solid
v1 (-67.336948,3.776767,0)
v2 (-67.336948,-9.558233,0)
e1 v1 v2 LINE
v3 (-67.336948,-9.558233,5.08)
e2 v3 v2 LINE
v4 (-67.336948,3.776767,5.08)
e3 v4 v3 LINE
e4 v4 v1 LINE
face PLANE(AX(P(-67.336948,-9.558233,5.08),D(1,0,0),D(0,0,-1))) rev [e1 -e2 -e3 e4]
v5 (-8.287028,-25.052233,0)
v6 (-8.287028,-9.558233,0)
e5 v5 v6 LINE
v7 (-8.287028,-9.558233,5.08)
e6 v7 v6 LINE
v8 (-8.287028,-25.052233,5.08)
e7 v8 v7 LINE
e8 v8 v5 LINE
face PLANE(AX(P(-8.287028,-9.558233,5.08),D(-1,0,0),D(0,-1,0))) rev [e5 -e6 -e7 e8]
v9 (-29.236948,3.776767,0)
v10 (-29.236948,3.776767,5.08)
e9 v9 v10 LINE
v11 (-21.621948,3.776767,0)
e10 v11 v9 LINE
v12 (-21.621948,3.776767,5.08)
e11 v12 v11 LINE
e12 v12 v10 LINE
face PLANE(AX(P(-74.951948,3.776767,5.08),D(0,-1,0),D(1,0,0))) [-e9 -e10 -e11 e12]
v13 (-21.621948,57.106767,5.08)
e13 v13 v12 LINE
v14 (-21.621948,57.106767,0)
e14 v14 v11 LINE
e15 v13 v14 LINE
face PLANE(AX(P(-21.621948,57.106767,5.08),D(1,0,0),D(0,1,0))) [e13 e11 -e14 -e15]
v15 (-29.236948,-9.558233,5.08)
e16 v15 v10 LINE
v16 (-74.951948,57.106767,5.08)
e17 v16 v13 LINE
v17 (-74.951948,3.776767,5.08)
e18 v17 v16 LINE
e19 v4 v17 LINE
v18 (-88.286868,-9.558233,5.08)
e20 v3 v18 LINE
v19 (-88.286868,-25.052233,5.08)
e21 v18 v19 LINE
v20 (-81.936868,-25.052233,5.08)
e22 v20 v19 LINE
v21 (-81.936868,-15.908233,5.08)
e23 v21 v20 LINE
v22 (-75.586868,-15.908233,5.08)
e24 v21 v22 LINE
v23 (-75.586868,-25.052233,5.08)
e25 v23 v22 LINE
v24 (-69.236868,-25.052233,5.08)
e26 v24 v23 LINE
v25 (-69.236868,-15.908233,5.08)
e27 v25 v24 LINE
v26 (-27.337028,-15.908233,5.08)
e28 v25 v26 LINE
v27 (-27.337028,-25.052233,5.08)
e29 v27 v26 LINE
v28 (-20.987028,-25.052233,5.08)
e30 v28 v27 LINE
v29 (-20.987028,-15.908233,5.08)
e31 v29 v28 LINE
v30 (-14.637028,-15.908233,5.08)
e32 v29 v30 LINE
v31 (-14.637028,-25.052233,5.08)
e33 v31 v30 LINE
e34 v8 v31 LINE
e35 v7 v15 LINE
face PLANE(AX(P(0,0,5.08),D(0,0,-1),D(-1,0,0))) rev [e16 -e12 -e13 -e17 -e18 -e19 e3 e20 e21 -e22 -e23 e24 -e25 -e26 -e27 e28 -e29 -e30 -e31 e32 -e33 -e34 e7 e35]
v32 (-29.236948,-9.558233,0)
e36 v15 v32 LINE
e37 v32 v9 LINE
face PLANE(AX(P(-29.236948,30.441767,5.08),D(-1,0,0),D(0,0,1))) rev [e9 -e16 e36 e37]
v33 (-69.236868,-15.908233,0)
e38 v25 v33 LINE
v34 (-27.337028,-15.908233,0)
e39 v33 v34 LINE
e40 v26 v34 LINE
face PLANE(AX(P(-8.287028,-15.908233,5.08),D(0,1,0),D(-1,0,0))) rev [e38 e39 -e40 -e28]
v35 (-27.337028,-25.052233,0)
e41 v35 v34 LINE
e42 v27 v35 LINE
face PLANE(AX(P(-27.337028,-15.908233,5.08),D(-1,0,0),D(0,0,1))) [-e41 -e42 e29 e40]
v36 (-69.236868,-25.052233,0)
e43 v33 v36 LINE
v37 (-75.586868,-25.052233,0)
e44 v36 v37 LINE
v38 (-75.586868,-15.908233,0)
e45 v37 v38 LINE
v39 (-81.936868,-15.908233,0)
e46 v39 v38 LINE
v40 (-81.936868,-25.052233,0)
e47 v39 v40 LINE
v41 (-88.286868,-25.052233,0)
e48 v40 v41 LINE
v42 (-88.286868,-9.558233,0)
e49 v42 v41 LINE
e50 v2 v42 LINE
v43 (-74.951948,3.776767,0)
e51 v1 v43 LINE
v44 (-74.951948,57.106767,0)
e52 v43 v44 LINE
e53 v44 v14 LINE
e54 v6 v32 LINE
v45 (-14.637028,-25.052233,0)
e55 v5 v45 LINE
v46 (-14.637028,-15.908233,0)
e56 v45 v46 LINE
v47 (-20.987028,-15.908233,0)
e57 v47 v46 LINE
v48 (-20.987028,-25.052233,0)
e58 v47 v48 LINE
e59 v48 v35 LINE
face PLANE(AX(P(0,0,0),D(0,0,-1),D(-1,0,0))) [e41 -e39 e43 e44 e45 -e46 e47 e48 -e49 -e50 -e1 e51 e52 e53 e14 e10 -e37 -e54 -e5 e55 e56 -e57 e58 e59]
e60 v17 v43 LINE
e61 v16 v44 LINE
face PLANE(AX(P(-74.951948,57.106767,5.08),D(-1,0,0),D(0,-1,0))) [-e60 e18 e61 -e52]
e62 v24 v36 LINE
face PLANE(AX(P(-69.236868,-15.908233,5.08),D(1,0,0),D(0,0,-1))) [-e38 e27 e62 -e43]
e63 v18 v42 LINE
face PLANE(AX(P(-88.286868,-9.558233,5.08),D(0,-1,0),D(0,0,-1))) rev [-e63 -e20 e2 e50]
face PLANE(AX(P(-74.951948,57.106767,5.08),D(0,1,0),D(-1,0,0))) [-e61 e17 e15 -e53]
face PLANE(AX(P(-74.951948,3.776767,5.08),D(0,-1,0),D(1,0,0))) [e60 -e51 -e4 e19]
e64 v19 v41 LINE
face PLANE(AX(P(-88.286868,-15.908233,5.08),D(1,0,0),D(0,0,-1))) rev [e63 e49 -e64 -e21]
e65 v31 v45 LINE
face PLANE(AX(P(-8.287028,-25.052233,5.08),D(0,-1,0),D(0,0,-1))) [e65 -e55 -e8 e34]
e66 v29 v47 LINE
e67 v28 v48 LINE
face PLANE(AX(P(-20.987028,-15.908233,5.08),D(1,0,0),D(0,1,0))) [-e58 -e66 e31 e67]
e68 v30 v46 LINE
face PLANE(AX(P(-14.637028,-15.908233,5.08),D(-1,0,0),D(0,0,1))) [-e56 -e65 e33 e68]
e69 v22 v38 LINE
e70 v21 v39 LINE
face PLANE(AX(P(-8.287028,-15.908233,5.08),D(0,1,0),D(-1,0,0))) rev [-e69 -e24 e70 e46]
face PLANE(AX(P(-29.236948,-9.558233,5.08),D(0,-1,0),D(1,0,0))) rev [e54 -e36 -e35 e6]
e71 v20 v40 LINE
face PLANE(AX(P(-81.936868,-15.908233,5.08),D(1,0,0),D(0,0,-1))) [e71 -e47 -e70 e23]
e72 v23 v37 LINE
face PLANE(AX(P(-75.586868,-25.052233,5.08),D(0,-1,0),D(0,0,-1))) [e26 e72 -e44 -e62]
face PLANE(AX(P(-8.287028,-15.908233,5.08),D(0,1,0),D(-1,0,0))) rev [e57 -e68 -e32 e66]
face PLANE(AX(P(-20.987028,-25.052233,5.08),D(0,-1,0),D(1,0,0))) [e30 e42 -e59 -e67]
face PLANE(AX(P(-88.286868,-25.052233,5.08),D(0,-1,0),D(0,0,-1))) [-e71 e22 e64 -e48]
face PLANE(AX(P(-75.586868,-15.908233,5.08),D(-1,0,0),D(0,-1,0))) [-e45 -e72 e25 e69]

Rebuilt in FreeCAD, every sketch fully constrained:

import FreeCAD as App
import Part
import Sketcher
Q = App.Units.Quantity

doc = App.newDocument("Part")
params = doc.addObject("Spreadsheet::Sheet", "Params")
for row, (alias, value) in enumerate([
    ("sketch1_width", "1.5 in"),
    ("sketch1_height", "0.25 in"),
    ("pad1_length", "0.2 in"),
    ("sketch2_width", "0.25 in"),
    ("sketch2_height", "0.36 in"),
    ("pad2_length", "0.2 in"),
    ("pad3_length", "0.2 in"),
    ("sketch4_height", "0.36 in"),
    ("pocket1_length", "0.2 in"),
], start=1):
    params.set(f"A{row}", alias)
    params.set(f"B{row}", "=" + value)
    params.setAlias(f"B{row}", alias)

body = doc.addObject("PartDesign::Body", "Body")

# Sketch on XY plane
sketch1 = body.newObject("Sketcher::SketchObject", "Sketch")
sketch1.AttachmentSupport = (doc.getObject("XY_Plane"), [""])
sketch1.MapMode = "FlatFace"
sketch1.addGeometry([
    Part.LineSegment(App.Vector(-29, 30, 0), App.Vector(-67, 30, 0)),  # 0
    Part.LineSegment(App.Vector(-67, 30, 0), App.Vector(-67, -10, 0)),  # 1
    Part.LineSegment(App.Vector(-67, -10, 0), App.Vector(-88, -10, 0)),  # 2
    Part.LineSegment(App.Vector(-88, -10, 0), App.Vector(-88, -16, 0)),  # 3
    Part.LineSegment(App.Vector(-88, -16, 0), App.Vector(-8, -16, 0)),  # 4
    Part.LineSegment(App.Vector(-8, -16, 0), App.Vector(-8, -10, 0)),  # 5
    Part.LineSegment(App.Vector(-8, -10, 0), App.Vector(-29, -10, 0)),  # 6
    Part.LineSegment(App.Vector(-29, -10, 0), App.Vector(-29, 30, 0)),  # 7
], False)
sketch1.addConstraint([
    Sketcher.Constraint("Coincident", 0, 2, 1, 1),
    Sketcher.Constraint("Coincident", 1, 2, 2, 1),
    Sketcher.Constraint("Coincident", 2, 2, 3, 1),
    Sketcher.Constraint("Coincident", 3, 2, 4, 1),
    Sketcher.Constraint("Coincident", 4, 2, 5, 1),
    Sketcher.Constraint("Coincident", 5, 2, 6, 1),
    Sketcher.Constraint("Coincident", 6, 2, 7, 1),
    Sketcher.Constraint("Coincident", 7, 2, 0, 1),
    Sketcher.Constraint("Horizontal", 0),
    Sketcher.Constraint("Vertical", 1),
    Sketcher.Constraint("Horizontal", 2),
    Sketcher.Constraint("Vertical", 3),
    Sketcher.Constraint("Horizontal", 4),
    Sketcher.Constraint("Vertical", 5),
    Sketcher.Constraint("Horizontal", 6),
    Sketcher.Constraint("Vertical", 7),
    Sketcher.Constraint("Horizontal", 2, 2, 5, 2),
    Sketcher.Constraint("Equal", 2, 6),
    Sketcher.Constraint("DistanceX", 0, 2, 0, 1, Q("1.5 in")),
    Sketcher.Constraint("DistanceY", 3, 2, 3, 1, Q("0.25 in")),
    Sketcher.Constraint("DistanceX", 2, 2, 2, 1, Q("0.8248 in")),
    Sketcher.Constraint("DistanceY", 1, 2, 1, 1, 40.0),
    Sketcher.Constraint("DistanceX", 0, 2, -1, 1, 67.336948),
    Sketcher.Constraint("DistanceY", -1, 1, 0, 2, 30.441767),
])
sketch1.setExpression("Constraints[18]", "Params.sketch1_width")
sketch1.setExpression("Constraints[19]", "Params.sketch1_height")
pad1 = body.newObject("PartDesign::Pad", "Pad")
pad1.Profile = sketch1
pad1.setExpression("Length", "Params.pad1_length")

# Sketch on XY plane
sketch2 = body.newObject("Sketcher::SketchObject", "Sketch001")
sketch2.AttachmentSupport = (doc.getObject("XY_Plane"), [""])
sketch2.MapMode = "FlatFace"
sketch2.addGeometry([
    Part.LineSegment(App.Vector(-82, -16, 0), App.Vector(-82, -25, 0)),  # 0
    Part.LineSegment(App.Vector(-82, -25, 0), App.Vector(-88, -25, 0)),  # 1
    Part.LineSegment(App.Vector(-88, -25, 0), App.Vector(-88, -16, 0)),  # 2
    Part.LineSegment(App.Vector(-88, -16, 0), App.Vector(-82, -16, 0)),  # 3
    Part.LineSegment(App.Vector(-69, -16, 0), App.Vector(-69, -25, 0)),  # 4
    Part.LineSegment(App.Vector(-69, -25, 0), App.Vector(-76, -25, 0)),  # 5
    Part.LineSegment(App.Vector(-76, -25, 0), App.Vector(-76, -16, 0)),  # 6
    Part.LineSegment(App.Vector(-76, -16, 0), App.Vector(-69, -16, 0)),  # 7
    Part.LineSegment(App.Vector(-8, -16, 0), App.Vector(-8, -25, 0)),  # 8
    Part.LineSegment(App.Vector(-8, -25, 0), App.Vector(-15, -25, 0)),  # 9
    Part.LineSegment(App.Vector(-15, -25, 0), App.Vector(-15, -16, 0)),  # 10
    Part.LineSegment(App.Vector(-15, -16, 0), App.Vector(-8, -16, 0)),  # 11
    Part.LineSegment(App.Vector(-21, -16, 0), App.Vector(-21, -25, 0)),  # 12
    Part.LineSegment(App.Vector(-21, -25, 0), App.Vector(-27, -25, 0)),  # 13
    Part.LineSegment(App.Vector(-27, -25, 0), App.Vector(-27, -16, 0)),  # 14
    Part.LineSegment(App.Vector(-27, -16, 0), App.Vector(-21, -16, 0)),  # 15
    Part.LineSegment(App.Vector(-57, -16, 0), App.Vector(-57, -25, 0)),  # 16
    Part.LineSegment(App.Vector(-57, -25, 0), App.Vector(-63, -25, 0)),  # 17
    Part.LineSegment(App.Vector(-63, -25, 0), App.Vector(-63, -16, 0)),  # 18
    Part.LineSegment(App.Vector(-63, -16, 0), App.Vector(-57, -16, 0)),  # 19
    Part.LineSegment(App.Vector(-34, -16, 0), App.Vector(-34, -25, 0)),  # 20
    Part.LineSegment(App.Vector(-34, -25, 0), App.Vector(-40, -25, 0)),  # 21
    Part.LineSegment(App.Vector(-40, -25, 0), App.Vector(-40, -16, 0)),  # 22
    Part.LineSegment(App.Vector(-40, -16, 0), App.Vector(-34, -16, 0)),  # 23
], False)
sketch2.addConstraint([
    Sketcher.Constraint("Coincident", 0, 2, 1, 1),
    Sketcher.Constraint("Coincident", 1, 2, 2, 1),
    Sketcher.Constraint("Coincident", 2, 2, 3, 1),
    Sketcher.Constraint("Coincident", 3, 2, 0, 1),
    Sketcher.Constraint("Coincident", 4, 2, 5, 1),
    Sketcher.Constraint("Coincident", 5, 2, 6, 1),
    Sketcher.Constraint("Coincident", 6, 2, 7, 1),
    Sketcher.Constraint("Coincident", 7, 2, 4, 1),
    Sketcher.Constraint("Coincident", 8, 2, 9, 1),
    Sketcher.Constraint("Coincident", 9, 2, 10, 1),
    Sketcher.Constraint("Coincident", 10, 2, 11, 1),
    Sketcher.Constraint("Coincident", 11, 2, 8, 1),
    Sketcher.Constraint("Coincident", 12, 2, 13, 1),
    Sketcher.Constraint("Coincident", 13, 2, 14, 1),
    Sketcher.Constraint("Coincident", 14, 2, 15, 1),
    Sketcher.Constraint("Coincident", 15, 2, 12, 1),
    Sketcher.Constraint("Coincident", 16, 2, 17, 1),
    Sketcher.Constraint("Coincident", 17, 2, 18, 1),
    Sketcher.Constraint("Coincident", 18, 2, 19, 1),
    Sketcher.Constraint("Coincident", 19, 2, 16, 1),
    Sketcher.Constraint("Coincident", 20, 2, 21, 1),
    Sketcher.Constraint("Coincident", 21, 2, 22, 1),
    Sketcher.Constraint("Coincident", 22, 2, 23, 1),
    Sketcher.Constraint("Coincident", 23, 2, 20, 1),
    Sketcher.Constraint("Vertical", 0),
    Sketcher.Constraint("Horizontal", 1),
    Sketcher.Constraint("Vertical", 2),
    Sketcher.Constraint("Horizontal", 3),
    Sketcher.Constraint("Vertical", 4),
    Sketcher.Constraint("Horizontal", 5),
    Sketcher.Constraint("Vertical", 6),
    Sketcher.Constraint("Horizontal", 7),
    Sketcher.Constraint("Vertical", 8),
    Sketcher.Constraint("Horizontal", 9),
    Sketcher.Constraint("Vertical", 10),
    Sketcher.Constraint("Horizontal", 11),
    Sketcher.Constraint("Vertical", 12),
    Sketcher.Constraint("Horizontal", 13),
    Sketcher.Constraint("Vertical", 14),
    Sketcher.Constraint("Horizontal", 15),
    Sketcher.Constraint("Vertical", 16),
    Sketcher.Constraint("Horizontal", 17),
    Sketcher.Constraint("Vertical", 18),
    Sketcher.Constraint("Horizontal", 19),
    Sketcher.Constraint("Vertical", 20),
    Sketcher.Constraint("Horizontal", 21),
    Sketcher.Constraint("Vertical", 22),
    Sketcher.Constraint("Horizontal", 23),
    Sketcher.Constraint("Horizontal", 1, 2, 4, 2),
    Sketcher.Constraint("Horizontal", 3, 2, 6, 2),
    Sketcher.Constraint("Horizontal", 5, 2, 8, 2),
    Sketcher.Constraint("Horizontal", 7, 2, 10, 2),
    Sketcher.Constraint("Horizontal", 9, 2, 12, 2),
    Sketcher.Constraint("Horizontal", 11, 2, 14, 2),
    Sketcher.Constraint("Horizontal", 13, 2, 16, 2),
    Sketcher.Constraint("Horizontal", 15, 2, 18, 2),
    Sketcher.Constraint("Horizontal", 17, 2, 20, 2),
    Sketcher.Constraint("Horizontal", 19, 2, 22, 2),
    Sketcher.Constraint("Equal", 3, 5),
    Sketcher.Constraint("Equal", 7, 9),
    Sketcher.Constraint("Equal", 11, 13),
    Sketcher.Constraint("Equal", 15, 17),
    Sketcher.Constraint("Equal", 19, 21),
    Sketcher.Constraint("DistanceX", 0, 2, 16, 2, Q("1 in")),
    Sketcher.Constraint("DistanceX", 1, 2, 1, 1, Q("0.25 in")),
    Sketcher.Constraint("DistanceY", 0, 2, 0, 1, Q("0.36 in")),
    Sketcher.Constraint("DistanceX", 0, 2, 4, 2, Q("0.5 in")),
    Sketcher.Constraint("DistanceX", 12, 2, 8, 2, Q("0.5 in")),
    Sketcher.Constraint("DistanceX", 20, 2, 12, 2, Q("0.5 in")),
    Sketcher.Constraint("DistanceX", 4, 2, 8, 2, Q("2.3996 in")),
    Sketcher.Constraint("DistanceX", 0, 2, -1, 1, 81.936868),
    Sketcher.Constraint("DistanceY", 0, 2, -1, 1, 25.052233),
])
sketch2.setExpression("Constraints[64]", "Params.sketch2_width")
sketch2.setExpression("Constraints[65]", "Params.sketch2_height")
pad2 = body.newObject("PartDesign::Pad", "Pad001")
pad2.Profile = sketch2
pad2.setExpression("Length", "Params.pad2_length")

# Sketch on XY plane
sketch3 = body.newObject("Sketcher::SketchObject", "Sketch002")
sketch3.AttachmentSupport = (doc.getObject("XY_Plane"), [""])
sketch3.MapMode = "FlatFace"
sketch3.addGeometry([
    Part.LineSegment(App.Vector(-22, 57, 0), App.Vector(-22, 4, 0)),
    Part.LineSegment(App.Vector(-22, 4, 0), App.Vector(-75, 4, 0)),
    Part.LineSegment(App.Vector(-75, 4, 0), App.Vector(-75, 57, 0)),
    Part.LineSegment(App.Vector(-75, 57, 0), App.Vector(-22, 57, 0)),
], False)
sketch3.addConstraint([
    Sketcher.Constraint("Coincident", 0, 2, 1, 1),
    Sketcher.Constraint("Coincident", 1, 2, 2, 1),
    Sketcher.Constraint("Coincident", 2, 2, 3, 1),
    Sketcher.Constraint("Coincident", 3, 2, 0, 1),
    Sketcher.Constraint("Vertical", 0),
    Sketcher.Constraint("Horizontal", 1),
    Sketcher.Constraint("Vertical", 2),
    Sketcher.Constraint("Horizontal", 3),
    Sketcher.Constraint("Equal", 3, 0),
    Sketcher.Constraint("DistanceX", 1, 2, 1, 1, 53.33),
    Sketcher.Constraint("DistanceX", 0, 2, -1, 1, 21.621948),
    Sketcher.Constraint("DistanceY", -1, 1, 0, 2, 3.776767),
])
pad3 = body.newObject("PartDesign::Pad", "Pad002")
pad3.Profile = sketch3
pad3.setExpression("Length", "Params.pad3_length")

# Sketch on XY plane
sketch4 = body.newObject("Sketcher::SketchObject", "Sketch003")
sketch4.AttachmentSupport = (doc.getObject("XY_Plane"), [""])
sketch4.MapMode = "FlatFace"
sketch4.AttachmentOffset = App.Placement(App.Vector(0, 0, 0.2 * 25.4), App.Rotation())
sketch4.addGeometry([
    Part.LineSegment(App.Vector(-63, -16, 0), App.Vector(-63, -25, 0)),
    Part.LineSegment(App.Vector(-63, -25, 0), App.Vector(-34, -25, 0)),
    Part.LineSegment(App.Vector(-34, -25, 0), App.Vector(-34, -16, 0)),
    Part.LineSegment(App.Vector(-34, -16, 0), App.Vector(-63, -16, 0)),
], False)
sketch4.addConstraint([
    Sketcher.Constraint("Coincident", 0, 2, 1, 1),
    Sketcher.Constraint("Coincident", 1, 2, 2, 1),
    Sketcher.Constraint("Coincident", 2, 2, 3, 1),
    Sketcher.Constraint("Coincident", 3, 2, 0, 1),
    Sketcher.Constraint("Vertical", 0),
    Sketcher.Constraint("Horizontal", 1),
    Sketcher.Constraint("Vertical", 2),
    Sketcher.Constraint("Horizontal", 3),
    Sketcher.Constraint("DistanceY", 0, 2, 0, 1, Q("0.36 in")),
    Sketcher.Constraint("DistanceX", 1, 1, 1, 2, Q("1.1496 in")),
    Sketcher.Constraint("DistanceX", 0, 2, -1, 1, 62.886868),
    Sketcher.Constraint("DistanceY", 0, 2, -1, 1, 25.052233),
])
sketch4.setExpression("Constraints[8]", "Params.sketch4_height")
pocket1 = body.newObject("PartDesign::Pocket", "Pocket")
pocket1.Profile = sketch4
pocket1.setExpression("Length", "Params.pocket1_length")

doc.recompute()
